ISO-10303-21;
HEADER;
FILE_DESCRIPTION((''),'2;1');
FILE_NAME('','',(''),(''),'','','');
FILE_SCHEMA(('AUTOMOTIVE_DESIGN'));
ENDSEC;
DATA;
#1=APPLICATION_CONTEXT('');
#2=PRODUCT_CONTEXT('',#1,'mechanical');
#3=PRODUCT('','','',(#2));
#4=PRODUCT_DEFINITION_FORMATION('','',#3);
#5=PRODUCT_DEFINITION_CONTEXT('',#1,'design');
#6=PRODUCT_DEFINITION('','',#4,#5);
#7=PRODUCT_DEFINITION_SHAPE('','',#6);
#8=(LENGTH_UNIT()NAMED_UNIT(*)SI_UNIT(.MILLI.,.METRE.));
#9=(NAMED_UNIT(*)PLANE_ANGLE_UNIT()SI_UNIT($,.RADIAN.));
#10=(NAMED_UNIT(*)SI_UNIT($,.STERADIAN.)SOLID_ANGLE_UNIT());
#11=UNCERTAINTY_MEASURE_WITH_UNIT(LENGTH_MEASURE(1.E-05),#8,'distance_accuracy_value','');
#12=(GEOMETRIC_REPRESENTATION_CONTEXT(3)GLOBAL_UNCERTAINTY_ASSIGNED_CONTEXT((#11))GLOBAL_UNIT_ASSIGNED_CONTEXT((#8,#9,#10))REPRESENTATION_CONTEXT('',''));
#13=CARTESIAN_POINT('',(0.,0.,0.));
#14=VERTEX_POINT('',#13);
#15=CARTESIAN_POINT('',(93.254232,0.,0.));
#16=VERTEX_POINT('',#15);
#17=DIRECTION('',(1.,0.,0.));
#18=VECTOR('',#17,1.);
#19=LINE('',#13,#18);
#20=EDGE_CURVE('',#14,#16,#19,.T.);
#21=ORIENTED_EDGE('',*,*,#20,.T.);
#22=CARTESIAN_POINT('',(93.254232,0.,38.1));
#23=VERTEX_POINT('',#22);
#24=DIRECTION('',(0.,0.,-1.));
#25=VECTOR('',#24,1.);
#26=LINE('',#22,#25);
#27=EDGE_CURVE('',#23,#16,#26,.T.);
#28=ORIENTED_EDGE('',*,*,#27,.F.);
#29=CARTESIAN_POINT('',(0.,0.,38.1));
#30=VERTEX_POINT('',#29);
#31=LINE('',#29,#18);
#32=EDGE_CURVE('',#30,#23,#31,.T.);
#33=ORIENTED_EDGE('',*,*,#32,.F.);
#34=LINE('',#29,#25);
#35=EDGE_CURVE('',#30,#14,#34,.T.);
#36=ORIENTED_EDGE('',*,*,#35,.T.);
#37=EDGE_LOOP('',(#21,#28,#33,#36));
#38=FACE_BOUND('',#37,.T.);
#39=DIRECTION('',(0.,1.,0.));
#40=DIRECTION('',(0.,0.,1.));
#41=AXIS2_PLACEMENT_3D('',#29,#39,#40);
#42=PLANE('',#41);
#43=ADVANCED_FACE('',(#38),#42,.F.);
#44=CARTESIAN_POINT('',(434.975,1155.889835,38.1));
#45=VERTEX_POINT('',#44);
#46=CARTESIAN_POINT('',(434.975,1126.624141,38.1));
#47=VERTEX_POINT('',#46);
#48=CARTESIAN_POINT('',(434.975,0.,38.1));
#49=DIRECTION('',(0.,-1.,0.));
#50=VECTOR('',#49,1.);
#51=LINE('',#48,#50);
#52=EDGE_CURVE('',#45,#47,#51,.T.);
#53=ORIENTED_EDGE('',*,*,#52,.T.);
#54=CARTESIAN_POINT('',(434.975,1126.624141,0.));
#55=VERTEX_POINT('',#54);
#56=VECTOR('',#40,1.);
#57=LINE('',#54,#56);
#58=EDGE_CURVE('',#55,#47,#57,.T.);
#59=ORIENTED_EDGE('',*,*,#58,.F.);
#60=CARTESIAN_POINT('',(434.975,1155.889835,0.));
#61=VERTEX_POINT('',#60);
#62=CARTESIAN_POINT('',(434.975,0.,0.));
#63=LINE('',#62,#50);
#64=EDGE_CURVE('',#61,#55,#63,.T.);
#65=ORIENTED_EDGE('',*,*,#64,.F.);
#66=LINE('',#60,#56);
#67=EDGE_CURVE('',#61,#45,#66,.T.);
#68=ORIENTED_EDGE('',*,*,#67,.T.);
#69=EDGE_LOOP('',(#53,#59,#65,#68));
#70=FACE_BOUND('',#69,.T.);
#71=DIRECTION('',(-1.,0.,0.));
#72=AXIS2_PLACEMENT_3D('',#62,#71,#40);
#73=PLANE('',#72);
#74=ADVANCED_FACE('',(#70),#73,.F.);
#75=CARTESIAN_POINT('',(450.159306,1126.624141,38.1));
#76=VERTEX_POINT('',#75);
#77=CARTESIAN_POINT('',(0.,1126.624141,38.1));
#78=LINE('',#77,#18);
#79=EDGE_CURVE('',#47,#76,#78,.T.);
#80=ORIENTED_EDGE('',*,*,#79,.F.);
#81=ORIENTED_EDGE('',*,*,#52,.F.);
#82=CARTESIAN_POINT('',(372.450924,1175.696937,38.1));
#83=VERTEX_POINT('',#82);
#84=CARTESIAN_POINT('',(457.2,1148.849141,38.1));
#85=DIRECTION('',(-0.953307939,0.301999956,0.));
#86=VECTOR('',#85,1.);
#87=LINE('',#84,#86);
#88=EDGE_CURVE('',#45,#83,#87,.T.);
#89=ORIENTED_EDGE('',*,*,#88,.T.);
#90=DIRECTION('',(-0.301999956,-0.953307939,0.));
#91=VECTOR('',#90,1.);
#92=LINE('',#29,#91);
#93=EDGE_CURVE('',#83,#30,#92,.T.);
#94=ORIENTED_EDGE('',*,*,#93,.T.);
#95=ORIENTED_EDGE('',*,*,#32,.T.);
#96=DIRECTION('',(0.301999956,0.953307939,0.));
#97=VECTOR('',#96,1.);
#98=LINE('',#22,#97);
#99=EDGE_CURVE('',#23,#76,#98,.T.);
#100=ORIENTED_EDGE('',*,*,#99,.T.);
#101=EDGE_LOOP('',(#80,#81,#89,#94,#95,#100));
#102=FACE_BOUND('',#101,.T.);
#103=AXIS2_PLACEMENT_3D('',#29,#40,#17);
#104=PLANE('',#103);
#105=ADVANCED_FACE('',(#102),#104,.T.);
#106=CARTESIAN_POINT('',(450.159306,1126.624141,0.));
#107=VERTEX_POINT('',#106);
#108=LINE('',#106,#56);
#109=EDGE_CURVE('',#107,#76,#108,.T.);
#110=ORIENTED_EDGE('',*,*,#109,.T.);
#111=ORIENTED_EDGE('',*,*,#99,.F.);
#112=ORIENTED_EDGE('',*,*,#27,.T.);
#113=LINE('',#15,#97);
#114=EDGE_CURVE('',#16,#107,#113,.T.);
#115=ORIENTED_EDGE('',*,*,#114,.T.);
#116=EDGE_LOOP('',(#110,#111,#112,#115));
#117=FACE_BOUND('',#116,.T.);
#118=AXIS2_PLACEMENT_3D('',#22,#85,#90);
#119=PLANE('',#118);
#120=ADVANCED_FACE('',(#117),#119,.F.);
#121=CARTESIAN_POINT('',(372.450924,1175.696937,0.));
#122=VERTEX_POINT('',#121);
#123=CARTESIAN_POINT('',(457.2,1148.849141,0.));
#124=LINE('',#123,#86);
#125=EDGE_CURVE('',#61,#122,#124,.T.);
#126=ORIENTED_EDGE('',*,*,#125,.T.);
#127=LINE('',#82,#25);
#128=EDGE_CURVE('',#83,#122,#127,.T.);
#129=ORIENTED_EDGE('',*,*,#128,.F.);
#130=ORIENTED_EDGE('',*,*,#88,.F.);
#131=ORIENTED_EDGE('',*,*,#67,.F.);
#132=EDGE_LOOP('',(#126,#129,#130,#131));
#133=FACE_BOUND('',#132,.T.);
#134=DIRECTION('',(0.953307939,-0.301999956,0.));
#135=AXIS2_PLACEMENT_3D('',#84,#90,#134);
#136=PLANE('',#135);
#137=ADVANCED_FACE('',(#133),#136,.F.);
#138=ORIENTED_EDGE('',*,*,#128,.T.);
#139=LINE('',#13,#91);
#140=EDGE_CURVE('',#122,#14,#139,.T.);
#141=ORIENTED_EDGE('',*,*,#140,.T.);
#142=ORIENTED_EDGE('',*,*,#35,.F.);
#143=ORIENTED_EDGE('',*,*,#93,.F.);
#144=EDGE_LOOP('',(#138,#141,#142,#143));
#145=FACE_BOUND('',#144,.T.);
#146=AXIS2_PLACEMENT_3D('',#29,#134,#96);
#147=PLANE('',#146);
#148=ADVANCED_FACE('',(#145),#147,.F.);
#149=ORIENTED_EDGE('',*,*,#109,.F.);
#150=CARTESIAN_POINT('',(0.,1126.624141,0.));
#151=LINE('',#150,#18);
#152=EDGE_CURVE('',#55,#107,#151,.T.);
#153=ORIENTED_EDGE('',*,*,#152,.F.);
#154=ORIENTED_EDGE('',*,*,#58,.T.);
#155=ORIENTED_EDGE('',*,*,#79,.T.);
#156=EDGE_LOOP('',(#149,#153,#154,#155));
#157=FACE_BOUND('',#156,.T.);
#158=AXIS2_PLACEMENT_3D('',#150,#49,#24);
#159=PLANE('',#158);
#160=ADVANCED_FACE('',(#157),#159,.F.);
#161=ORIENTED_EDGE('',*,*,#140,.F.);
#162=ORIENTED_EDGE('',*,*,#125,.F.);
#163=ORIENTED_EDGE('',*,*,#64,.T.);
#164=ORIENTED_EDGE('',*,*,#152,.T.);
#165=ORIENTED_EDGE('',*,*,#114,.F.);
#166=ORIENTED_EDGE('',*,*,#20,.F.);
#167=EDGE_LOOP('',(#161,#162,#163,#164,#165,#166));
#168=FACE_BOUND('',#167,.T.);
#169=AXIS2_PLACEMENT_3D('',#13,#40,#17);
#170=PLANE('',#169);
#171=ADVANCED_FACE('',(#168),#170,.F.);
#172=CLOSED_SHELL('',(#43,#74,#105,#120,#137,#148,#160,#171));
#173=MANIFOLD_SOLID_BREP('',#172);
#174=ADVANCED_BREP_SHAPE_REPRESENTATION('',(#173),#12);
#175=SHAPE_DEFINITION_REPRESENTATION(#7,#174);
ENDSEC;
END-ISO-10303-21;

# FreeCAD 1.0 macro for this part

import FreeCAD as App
import Part
import Sketcher
from FreeCAD import Vector
Q = App.Units.Quantity

doc = App.newDocument("Part")
params = doc.addObject("Spreadsheet::Sheet", "Params")
for row, (alias, value) in enumerate([
    ("sketch1_length", "3.5 in"),
    ("pad1_length", "1.5 in"),
], start=1):
    params.set(f"A{row}", alias)
    params.set(f"B{row}", "=" + value)
    params.setAlias(f"B{row}", alias)

body = doc.addObject("PartDesign::Body", "Body")

sketch1 = body.newObject("Sketcher::SketchObject", "Sketch")
sketch1.AttachmentSupport = (doc.getObject("XY_Plane"), [""])
sketch1.MapMode = "FlatFace"
sketch1.addGeometry([
    Part.LineSegment(Vector(0, 0, 0), Vector(93.254232, 0, 0)),
    Part.LineSegment(Vector(93.254232, 0, 0), Vector(457.2, 1148.849141, 0)),
    Part.LineSegment(Vector(457.2, 1148.849141, 0), Vector(372.450924, 1175.696937, 0)),
    Part.LineSegment(Vector(372.450924, 1175.696937, 0), Vector(0, 0, 0)),
], False)
sketch1.addConstraint([
    Sketcher.Constraint("Coincident", 0, 2, 1, 1),
    Sketcher.Constraint("Coincident", 1, 2, 2, 1),
    Sketcher.Constraint("Coincident", 2, 2, 3, 1),
    Sketcher.Constraint("Coincident", 3, 2, 0, 1),
    Sketcher.Constraint("Horizontal", 0),
    Sketcher.Constraint("Coincident", 3, 2, -1, 1),
    Sketcher.Constraint("Perpendicular", 1, 2),
    Sketcher.Constraint("Perpendicular", 2, 3),
    Sketcher.Constraint("DistanceX", -1, 1, 1, 2, Q("18 in")),
    Sketcher.Constraint("Distance", 2, Q("3.5 in")),
    Sketcher.Constraint("DistanceY", 1, 2, 2, 2, Q("1.0569998 in")),
])
sketch1.setExpression("Constraints[9]", "Params.sketch1_length")
pad1 = body.newObject("PartDesign::Pad", "Pad")
pad1.Profile = sketch1
pad1.setExpression("Length", "Params.pad1_length")

sketch2 = body.newObject("Sketcher::SketchObject", "Sketch001")
sketch2.AttachmentSupport = (doc.getObject("XY_Plane"), [""])
sketch2.MapMode = "FlatFace"
sketch2.AttachmentOffset = App.Placement(Vector(0, 0, 1.5 * 25.4), App.Rotation())
sketch2.addGeometry([
    Part.LineSegment(Vector(434.975, 1126.624141, 0), Vector(450.159306, 1126.624141, 0)),
    Part.LineSegment(Vector(450.159306, 1126.624141, 0), Vector(457.2, 1148.849141, 0)),
    Part.LineSegment(Vector(457.2, 1148.849141, 0), Vector(434.975, 1155.889835, 0)),
    Part.LineSegment(Vector(434.975, 1155.889835, 0), Vector(434.975, 1126.624141, 0)),
], False)
sketch2.addConstraint([
    Sketcher.Constraint("Coincident", 0, 2, 1, 1),
    Sketcher.Constraint("Coincident", 1, 2, 2, 1),
    Sketcher.Constraint("Coincident", 2, 2, 3, 1),
    Sketcher.Constraint("Coincident", 3, 2, 0, 1),
    Sketcher.Constraint("Horizontal", 0),
    Sketcher.Constraint("Vertical", 3),
    Sketcher.Constraint("Perpendicular", 1, 2),
    Sketcher.Constraint("Equal", 1, 2),
    Sketcher.Constraint("DistanceX", -1, 1, 1, 2, Q("18 in")),
    Sketcher.Constraint("DistanceX", -1, 1, 2, 2, Q("17.125 in")),
    Sketcher.Constraint("Distance", 1, Q("23.313558 mm")),
    Sketcher.Constraint("DistanceY", -1, 1, 0, 2, Q("1126.624141 mm")),
])
pocket1 = body.newObject("PartDesign::Pocket", "Pocket")
pocket1.Profile = sketch2
pocket1.Type = "ThroughAll"

doc.recompute()
